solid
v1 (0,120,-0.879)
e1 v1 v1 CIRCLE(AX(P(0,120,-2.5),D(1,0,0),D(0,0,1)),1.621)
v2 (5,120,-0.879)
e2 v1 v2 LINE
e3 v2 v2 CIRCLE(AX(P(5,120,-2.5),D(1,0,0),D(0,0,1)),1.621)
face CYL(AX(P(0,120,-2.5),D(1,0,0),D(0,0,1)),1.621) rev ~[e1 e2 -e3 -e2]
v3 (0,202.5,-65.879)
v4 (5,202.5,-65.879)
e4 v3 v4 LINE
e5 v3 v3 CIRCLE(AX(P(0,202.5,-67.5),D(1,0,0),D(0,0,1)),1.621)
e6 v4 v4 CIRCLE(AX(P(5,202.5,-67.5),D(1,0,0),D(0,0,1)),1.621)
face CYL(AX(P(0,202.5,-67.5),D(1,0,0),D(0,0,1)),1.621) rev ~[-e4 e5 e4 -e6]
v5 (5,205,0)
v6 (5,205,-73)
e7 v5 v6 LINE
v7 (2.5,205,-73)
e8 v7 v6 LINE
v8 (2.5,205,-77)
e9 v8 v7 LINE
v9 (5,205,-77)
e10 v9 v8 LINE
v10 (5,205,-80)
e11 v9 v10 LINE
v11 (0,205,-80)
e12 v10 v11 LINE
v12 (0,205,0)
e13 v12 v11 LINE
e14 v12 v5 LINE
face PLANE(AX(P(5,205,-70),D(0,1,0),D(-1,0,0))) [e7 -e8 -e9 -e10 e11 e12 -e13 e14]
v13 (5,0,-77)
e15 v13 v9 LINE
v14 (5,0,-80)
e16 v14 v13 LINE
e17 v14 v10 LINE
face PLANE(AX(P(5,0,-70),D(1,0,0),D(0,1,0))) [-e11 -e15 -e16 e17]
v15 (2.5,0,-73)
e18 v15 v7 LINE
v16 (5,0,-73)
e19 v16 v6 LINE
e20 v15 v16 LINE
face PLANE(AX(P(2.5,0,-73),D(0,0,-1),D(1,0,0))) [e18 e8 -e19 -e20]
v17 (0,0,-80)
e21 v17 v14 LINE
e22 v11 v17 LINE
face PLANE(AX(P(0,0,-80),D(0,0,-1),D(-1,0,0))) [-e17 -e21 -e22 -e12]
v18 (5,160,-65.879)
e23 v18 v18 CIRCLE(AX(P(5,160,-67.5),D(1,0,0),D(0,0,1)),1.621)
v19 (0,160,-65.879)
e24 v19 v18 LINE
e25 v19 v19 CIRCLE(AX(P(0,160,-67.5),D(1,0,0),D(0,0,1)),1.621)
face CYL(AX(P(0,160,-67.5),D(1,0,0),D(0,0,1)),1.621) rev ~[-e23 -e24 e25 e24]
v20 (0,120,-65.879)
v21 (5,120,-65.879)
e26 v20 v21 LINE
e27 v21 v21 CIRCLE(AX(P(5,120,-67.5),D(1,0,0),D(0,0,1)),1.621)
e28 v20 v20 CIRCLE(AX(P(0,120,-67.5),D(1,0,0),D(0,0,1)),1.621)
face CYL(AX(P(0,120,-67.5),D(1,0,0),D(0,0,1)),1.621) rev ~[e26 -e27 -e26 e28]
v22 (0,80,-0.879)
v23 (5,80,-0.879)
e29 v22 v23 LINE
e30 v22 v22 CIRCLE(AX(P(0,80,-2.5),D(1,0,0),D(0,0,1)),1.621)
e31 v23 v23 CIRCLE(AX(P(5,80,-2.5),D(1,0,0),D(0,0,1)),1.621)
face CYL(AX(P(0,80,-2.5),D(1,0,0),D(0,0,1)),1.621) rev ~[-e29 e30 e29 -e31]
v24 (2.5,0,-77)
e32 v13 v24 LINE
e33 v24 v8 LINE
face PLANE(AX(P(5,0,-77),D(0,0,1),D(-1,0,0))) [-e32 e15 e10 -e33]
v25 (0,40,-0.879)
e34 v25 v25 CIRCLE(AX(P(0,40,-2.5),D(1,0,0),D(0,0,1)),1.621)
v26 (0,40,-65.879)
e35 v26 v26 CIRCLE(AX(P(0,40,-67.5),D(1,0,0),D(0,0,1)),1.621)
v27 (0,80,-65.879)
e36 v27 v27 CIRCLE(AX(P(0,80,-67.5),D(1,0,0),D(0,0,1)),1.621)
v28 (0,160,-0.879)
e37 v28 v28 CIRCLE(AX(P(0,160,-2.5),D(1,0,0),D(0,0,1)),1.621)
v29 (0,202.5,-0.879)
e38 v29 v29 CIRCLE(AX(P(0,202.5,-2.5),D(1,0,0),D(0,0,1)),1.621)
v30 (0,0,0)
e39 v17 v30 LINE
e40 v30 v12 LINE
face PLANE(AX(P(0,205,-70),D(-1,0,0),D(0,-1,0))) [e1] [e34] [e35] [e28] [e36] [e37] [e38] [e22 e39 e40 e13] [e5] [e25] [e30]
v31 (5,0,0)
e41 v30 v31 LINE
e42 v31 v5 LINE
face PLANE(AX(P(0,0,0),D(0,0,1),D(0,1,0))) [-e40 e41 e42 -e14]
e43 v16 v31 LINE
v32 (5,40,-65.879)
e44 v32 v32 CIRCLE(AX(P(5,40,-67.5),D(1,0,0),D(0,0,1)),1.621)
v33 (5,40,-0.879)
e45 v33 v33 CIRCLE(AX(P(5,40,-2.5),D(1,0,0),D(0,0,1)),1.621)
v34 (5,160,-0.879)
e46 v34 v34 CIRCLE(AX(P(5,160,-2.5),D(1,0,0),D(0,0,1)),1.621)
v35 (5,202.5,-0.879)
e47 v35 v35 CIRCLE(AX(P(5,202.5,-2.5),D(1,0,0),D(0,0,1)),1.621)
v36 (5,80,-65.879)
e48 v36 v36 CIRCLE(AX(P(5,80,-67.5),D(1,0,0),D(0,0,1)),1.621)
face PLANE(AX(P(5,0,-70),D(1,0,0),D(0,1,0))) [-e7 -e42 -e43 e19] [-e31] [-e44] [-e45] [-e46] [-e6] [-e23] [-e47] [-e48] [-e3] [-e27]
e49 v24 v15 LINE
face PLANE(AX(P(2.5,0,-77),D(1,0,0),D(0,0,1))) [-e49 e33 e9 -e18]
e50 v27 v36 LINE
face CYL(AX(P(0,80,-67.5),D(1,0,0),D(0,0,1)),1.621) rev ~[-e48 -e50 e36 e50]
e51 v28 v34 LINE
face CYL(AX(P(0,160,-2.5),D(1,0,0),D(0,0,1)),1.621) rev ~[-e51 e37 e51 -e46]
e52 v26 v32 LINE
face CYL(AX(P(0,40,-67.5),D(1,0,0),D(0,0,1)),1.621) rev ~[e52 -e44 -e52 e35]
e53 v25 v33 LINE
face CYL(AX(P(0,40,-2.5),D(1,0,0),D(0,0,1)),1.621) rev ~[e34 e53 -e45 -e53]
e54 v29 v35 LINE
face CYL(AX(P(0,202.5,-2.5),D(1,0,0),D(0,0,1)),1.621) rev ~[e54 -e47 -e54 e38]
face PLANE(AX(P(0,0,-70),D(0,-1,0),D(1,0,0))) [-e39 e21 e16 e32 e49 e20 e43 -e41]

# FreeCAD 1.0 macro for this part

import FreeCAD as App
import Part
import Sketcher

doc = App.newDocument("Part")
body = doc.addObject("PartDesign::Body", "Body")

sketch1 = doc.addObject("Sketcher::SketchObject", "Sketch")
body.addObject(sketch1)
sketch1.AttachmentSupport = (doc.YZ_Plane, [""])
sketch1.MapMode = "FlatFace"
sketch1.addGeometry([
    Part.LineSegment(App.Vector(205, 0, 0), App.Vector(0, 0, 0)),
    Part.LineSegment(App.Vector(0, 0, 0), App.Vector(0, -70, 0)),
    Part.LineSegment(App.Vector(0, -70, 0), App.Vector(205, -70, 0)),
    Part.LineSegment(App.Vector(205, -70, 0), App.Vector(205, 0, 0)),
], False)
sketch1.addConstraint([
    Sketcher.Constraint("Coincident", 0, 2, 1, 1),
    Sketcher.Constraint("Coincident", 1, 2, 2, 1),
    Sketcher.Constraint("Coincident", 2, 2, 3, 1),
    Sketcher.Constraint("Coincident", 3, 2, 0, 1),
    Sketcher.Constraint("Horizontal", 0),
    Sketcher.Constraint("Vertical", 1),
    Sketcher.Constraint("Horizontal", 2),
    Sketcher.Constraint("Vertical", 3),
    Sketcher.Constraint("Coincident", 0, 2, -1, 1),
    Sketcher.Constraint("DistanceX", 0, 2, 0, 1, 205.0),
    Sketcher.Constraint("DistanceY", 1, 2, 1, 1, 70.0),
])
pad1 = doc.addObject("PartDesign::Pad", "Pad")
body.addObject(pad1)
pad1.Profile = sketch1
pad1.Length = 5

sketch2 = doc.addObject("Sketcher::SketchObject", "Sketch001")
body.addObject(sketch2)
sketch2.AttachmentSupport = (doc.YZ_Plane, [""])
sketch2.MapMode = "FlatFace"
sketch2.addGeometry([
    Part.Circle(App.Vector(202.5, -67.5, 0), App.Vector(0, 0, 1), 1.621),
    Part.Circle(App.Vector(160, -67.5, 0), App.Vector(0, 0, 1), 1.621),
    Part.Circle(App.Vector(120, -67.5, 0), App.Vector(0, 0, 1), 1.621),
    Part.Circle(App.Vector(80, -67.5, 0), App.Vector(0, 0, 1), 1.621),
    Part.Circle(App.Vector(40, -67.5, 0), App.Vector(0, 0, 1), 1.621),
    Part.Circle(App.Vector(40, -2.5, 0), App.Vector(0, 0, 1), 1.621),
    Part.Circle(App.Vector(80, -2.5, 0), App.Vector(0, 0, 1), 1.621),
    Part.Circle(App.Vector(120, -2.5, 0), App.Vector(0, 0, 1), 1.621),
    Part.Circle(App.Vector(160, -2.5, 0), App.Vector(0, 0, 1), 1.621),
    Part.Circle(App.Vector(202.5, -2.5, 0), App.Vector(0, 0, 1), 1.621),
], False)
sketch2.addConstraint([
    Sketcher.Constraint("Equal", 0, 1),
    Sketcher.Constraint("Equal", 1, 2),
    Sketcher.Constraint("Equal", 2, 3),
    Sketcher.Constraint("Equal", 3, 4),
    Sketcher.Constraint("Equal", 4, 5),
    Sketcher.Constraint("Equal", 5, 6),
    Sketcher.Constraint("Equal", 6, 7),
    Sketcher.Constraint("Equal", 7, 8),
    Sketcher.Constraint("Equal", 8, 9),
    Sketcher.Constraint("Horizontal", 0, 3, 1, 3),
    Sketcher.Constraint("Horizontal", 1, 3, 2, 3),
    Sketcher.Constraint("Horizontal", 2, 3, 3, 3),
    Sketcher.Constraint("Horizontal", 3, 3, 4, 3),
    Sketcher.Constraint("Horizontal", 5, 3, 6, 3),
    Sketcher.Constraint("Horizontal", 6, 3, 7, 3),
    Sketcher.Constraint("Horizontal", 7, 3, 8, 3),
    Sketcher.Constraint("Horizontal", 8, 3, 9, 3),
    Sketcher.Constraint("Vertical", 4, 3, 5, 3),
    Sketcher.Constraint("Vertical", 3, 3, 6, 3),
    Sketcher.Constraint("Vertical", 2, 3, 7, 3),
    Sketcher.Constraint("Vertical", 1, 3, 8, 3),
    Sketcher.Constraint("Vertical", 0, 3, 9, 3),
    Sketcher.Constraint("Diameter", 0, 3.242),
    Sketcher.Constraint("DistanceX", -1, 1, 1, 3, 160.0),
    Sketcher.Constraint("DistanceX", -1, 1, 2, 3, 120.0),
    Sketcher.Constraint("DistanceX", -1, 1, 3, 3, 80.0),
    Sketcher.Constraint("DistanceX", -1, 1, 4, 3, 40.0),
    Sketcher.Constraint("DistanceY", 4, 3, 5, 3, 65.0),
    Sketcher.Constraint("DistanceX", -1, 1, 0, 3, 202.5),
    Sketcher.Constraint("DistanceY", 0, 3, -1, 1, 67.5),
])
doc.recompute()
hole = doc.addObject("PartDesign::Hole", "Hole")
body.addObject(hole)
hole.Profile = sketch2
hole.ThreadType = "None"
hole.Diameter = 3.242
hole.DepthType = "Dimension"
hole.Depth = 11.8
hole.DrillPoint = "Flat"
hole.Reversed = True

sketch3 = doc.addObject("Sketcher::SketchObject", "Sketch002")
body.addObject(sketch3)
sketch3.AttachmentSupport = (doc.XY_Plane, [""])
sketch3.MapMode = "FlatFace"
sketch3.AttachmentOffset = App.Placement(App.Vector(0, 0, -70), App.Rotation())
sketch3.addGeometry([
    Part.LineSegment(App.Vector(0, 0, 0), App.Vector(0, 205, 0)),
    Part.LineSegment(App.Vector(0, 205, 0), App.Vector(5, 205, 0)),
    Part.LineSegment(App.Vector(5, 205, 0), App.Vector(5, 0, 0)),
    Part.LineSegment(App.Vector(5, 0, 0), App.Vector(0, 0, 0)),
], False)
sketch3.addConstraint([
    Sketcher.Constraint("Coincident", 0, 2, 1, 1),
    Sketcher.Constraint("Coincident", 1, 2, 2, 1),
    Sketcher.Constraint("Coincident", 2, 2, 3, 1),
    Sketcher.Constraint("Coincident", 3, 2, 0, 1),
    Sketcher.Constraint("Vertical", 0),
    Sketcher.Constraint("Horizontal", 1),
    Sketcher.Constraint("Vertical", 2),
    Sketcher.Constraint("Horizontal", 3),
    Sketcher.Constraint("Coincident", 3, 2, -1, 1),
    Sketcher.Constraint("DistanceX", 1, 1, 1, 2, 5.0),
    Sketcher.Constraint("DistanceY", 0, 1, 0, 2, 205.0),
])
pad2 = doc.addObject("PartDesign::Pad", "Pad001")
body.addObject(pad2)
pad2.Profile = sketch3
pad2.Length = 10
pad2.Reversed = True

sketch4 = doc.addObject("Sketcher::SketchObject", "Sketch003")
body.addObject(sketch4)
sketch4.AttachmentSupport = (doc.XZ_Plane, [""])
sketch4.MapMode = "FlatFace"
sketch4.addGeometry([
    Part.LineSegment(App.Vector(5, -77, 0), App.Vector(5, -73, 0)),
    Part.LineSegment(App.Vector(5, -73, 0), App.Vector(2.5, -73, 0)),
    Part.LineSegment(App.Vector(2.5, -73, 0), App.Vector(2.5, -77, 0)),
    Part.LineSegment(App.Vector(2.5, -77, 0), App.Vector(5, -77, 0)),
], False)
sketch4.addConstraint([
    Sketcher.Constraint("Coincident", 0, 2, 1, 1),
    Sketcher.Constraint("Coincident", 1, 2, 2, 1),
    Sketcher.Constraint("Coincident", 2, 2, 3, 1),
    Sketcher.Constraint("Coincident", 3, 2, 0, 1),
    Sketcher.Constraint("Vertical", 0),
    Sketcher.Constraint("Horizontal", 1),
    Sketcher.Constraint("Vertical", 2),
    Sketcher.Constraint("Horizontal", 3),
    Sketcher.Constraint("DistanceY", 0, 1, 0, 2, 4.0),
    Sketcher.Constraint("DistanceX", 1, 2, 1, 1, 2.5),
    Sketcher.Constraint("DistanceX", -1, 1, 1, 2, 2.5),
    Sketcher.Constraint("DistanceY", 0, 2, -1, 1, 73.0),
])
pocket1 = doc.addObject("PartDesign::Pocket", "Pocket")
body.addObject(pocket1)
pocket1.Profile = sketch4
pocket1.Length = 205

doc.recompute()
